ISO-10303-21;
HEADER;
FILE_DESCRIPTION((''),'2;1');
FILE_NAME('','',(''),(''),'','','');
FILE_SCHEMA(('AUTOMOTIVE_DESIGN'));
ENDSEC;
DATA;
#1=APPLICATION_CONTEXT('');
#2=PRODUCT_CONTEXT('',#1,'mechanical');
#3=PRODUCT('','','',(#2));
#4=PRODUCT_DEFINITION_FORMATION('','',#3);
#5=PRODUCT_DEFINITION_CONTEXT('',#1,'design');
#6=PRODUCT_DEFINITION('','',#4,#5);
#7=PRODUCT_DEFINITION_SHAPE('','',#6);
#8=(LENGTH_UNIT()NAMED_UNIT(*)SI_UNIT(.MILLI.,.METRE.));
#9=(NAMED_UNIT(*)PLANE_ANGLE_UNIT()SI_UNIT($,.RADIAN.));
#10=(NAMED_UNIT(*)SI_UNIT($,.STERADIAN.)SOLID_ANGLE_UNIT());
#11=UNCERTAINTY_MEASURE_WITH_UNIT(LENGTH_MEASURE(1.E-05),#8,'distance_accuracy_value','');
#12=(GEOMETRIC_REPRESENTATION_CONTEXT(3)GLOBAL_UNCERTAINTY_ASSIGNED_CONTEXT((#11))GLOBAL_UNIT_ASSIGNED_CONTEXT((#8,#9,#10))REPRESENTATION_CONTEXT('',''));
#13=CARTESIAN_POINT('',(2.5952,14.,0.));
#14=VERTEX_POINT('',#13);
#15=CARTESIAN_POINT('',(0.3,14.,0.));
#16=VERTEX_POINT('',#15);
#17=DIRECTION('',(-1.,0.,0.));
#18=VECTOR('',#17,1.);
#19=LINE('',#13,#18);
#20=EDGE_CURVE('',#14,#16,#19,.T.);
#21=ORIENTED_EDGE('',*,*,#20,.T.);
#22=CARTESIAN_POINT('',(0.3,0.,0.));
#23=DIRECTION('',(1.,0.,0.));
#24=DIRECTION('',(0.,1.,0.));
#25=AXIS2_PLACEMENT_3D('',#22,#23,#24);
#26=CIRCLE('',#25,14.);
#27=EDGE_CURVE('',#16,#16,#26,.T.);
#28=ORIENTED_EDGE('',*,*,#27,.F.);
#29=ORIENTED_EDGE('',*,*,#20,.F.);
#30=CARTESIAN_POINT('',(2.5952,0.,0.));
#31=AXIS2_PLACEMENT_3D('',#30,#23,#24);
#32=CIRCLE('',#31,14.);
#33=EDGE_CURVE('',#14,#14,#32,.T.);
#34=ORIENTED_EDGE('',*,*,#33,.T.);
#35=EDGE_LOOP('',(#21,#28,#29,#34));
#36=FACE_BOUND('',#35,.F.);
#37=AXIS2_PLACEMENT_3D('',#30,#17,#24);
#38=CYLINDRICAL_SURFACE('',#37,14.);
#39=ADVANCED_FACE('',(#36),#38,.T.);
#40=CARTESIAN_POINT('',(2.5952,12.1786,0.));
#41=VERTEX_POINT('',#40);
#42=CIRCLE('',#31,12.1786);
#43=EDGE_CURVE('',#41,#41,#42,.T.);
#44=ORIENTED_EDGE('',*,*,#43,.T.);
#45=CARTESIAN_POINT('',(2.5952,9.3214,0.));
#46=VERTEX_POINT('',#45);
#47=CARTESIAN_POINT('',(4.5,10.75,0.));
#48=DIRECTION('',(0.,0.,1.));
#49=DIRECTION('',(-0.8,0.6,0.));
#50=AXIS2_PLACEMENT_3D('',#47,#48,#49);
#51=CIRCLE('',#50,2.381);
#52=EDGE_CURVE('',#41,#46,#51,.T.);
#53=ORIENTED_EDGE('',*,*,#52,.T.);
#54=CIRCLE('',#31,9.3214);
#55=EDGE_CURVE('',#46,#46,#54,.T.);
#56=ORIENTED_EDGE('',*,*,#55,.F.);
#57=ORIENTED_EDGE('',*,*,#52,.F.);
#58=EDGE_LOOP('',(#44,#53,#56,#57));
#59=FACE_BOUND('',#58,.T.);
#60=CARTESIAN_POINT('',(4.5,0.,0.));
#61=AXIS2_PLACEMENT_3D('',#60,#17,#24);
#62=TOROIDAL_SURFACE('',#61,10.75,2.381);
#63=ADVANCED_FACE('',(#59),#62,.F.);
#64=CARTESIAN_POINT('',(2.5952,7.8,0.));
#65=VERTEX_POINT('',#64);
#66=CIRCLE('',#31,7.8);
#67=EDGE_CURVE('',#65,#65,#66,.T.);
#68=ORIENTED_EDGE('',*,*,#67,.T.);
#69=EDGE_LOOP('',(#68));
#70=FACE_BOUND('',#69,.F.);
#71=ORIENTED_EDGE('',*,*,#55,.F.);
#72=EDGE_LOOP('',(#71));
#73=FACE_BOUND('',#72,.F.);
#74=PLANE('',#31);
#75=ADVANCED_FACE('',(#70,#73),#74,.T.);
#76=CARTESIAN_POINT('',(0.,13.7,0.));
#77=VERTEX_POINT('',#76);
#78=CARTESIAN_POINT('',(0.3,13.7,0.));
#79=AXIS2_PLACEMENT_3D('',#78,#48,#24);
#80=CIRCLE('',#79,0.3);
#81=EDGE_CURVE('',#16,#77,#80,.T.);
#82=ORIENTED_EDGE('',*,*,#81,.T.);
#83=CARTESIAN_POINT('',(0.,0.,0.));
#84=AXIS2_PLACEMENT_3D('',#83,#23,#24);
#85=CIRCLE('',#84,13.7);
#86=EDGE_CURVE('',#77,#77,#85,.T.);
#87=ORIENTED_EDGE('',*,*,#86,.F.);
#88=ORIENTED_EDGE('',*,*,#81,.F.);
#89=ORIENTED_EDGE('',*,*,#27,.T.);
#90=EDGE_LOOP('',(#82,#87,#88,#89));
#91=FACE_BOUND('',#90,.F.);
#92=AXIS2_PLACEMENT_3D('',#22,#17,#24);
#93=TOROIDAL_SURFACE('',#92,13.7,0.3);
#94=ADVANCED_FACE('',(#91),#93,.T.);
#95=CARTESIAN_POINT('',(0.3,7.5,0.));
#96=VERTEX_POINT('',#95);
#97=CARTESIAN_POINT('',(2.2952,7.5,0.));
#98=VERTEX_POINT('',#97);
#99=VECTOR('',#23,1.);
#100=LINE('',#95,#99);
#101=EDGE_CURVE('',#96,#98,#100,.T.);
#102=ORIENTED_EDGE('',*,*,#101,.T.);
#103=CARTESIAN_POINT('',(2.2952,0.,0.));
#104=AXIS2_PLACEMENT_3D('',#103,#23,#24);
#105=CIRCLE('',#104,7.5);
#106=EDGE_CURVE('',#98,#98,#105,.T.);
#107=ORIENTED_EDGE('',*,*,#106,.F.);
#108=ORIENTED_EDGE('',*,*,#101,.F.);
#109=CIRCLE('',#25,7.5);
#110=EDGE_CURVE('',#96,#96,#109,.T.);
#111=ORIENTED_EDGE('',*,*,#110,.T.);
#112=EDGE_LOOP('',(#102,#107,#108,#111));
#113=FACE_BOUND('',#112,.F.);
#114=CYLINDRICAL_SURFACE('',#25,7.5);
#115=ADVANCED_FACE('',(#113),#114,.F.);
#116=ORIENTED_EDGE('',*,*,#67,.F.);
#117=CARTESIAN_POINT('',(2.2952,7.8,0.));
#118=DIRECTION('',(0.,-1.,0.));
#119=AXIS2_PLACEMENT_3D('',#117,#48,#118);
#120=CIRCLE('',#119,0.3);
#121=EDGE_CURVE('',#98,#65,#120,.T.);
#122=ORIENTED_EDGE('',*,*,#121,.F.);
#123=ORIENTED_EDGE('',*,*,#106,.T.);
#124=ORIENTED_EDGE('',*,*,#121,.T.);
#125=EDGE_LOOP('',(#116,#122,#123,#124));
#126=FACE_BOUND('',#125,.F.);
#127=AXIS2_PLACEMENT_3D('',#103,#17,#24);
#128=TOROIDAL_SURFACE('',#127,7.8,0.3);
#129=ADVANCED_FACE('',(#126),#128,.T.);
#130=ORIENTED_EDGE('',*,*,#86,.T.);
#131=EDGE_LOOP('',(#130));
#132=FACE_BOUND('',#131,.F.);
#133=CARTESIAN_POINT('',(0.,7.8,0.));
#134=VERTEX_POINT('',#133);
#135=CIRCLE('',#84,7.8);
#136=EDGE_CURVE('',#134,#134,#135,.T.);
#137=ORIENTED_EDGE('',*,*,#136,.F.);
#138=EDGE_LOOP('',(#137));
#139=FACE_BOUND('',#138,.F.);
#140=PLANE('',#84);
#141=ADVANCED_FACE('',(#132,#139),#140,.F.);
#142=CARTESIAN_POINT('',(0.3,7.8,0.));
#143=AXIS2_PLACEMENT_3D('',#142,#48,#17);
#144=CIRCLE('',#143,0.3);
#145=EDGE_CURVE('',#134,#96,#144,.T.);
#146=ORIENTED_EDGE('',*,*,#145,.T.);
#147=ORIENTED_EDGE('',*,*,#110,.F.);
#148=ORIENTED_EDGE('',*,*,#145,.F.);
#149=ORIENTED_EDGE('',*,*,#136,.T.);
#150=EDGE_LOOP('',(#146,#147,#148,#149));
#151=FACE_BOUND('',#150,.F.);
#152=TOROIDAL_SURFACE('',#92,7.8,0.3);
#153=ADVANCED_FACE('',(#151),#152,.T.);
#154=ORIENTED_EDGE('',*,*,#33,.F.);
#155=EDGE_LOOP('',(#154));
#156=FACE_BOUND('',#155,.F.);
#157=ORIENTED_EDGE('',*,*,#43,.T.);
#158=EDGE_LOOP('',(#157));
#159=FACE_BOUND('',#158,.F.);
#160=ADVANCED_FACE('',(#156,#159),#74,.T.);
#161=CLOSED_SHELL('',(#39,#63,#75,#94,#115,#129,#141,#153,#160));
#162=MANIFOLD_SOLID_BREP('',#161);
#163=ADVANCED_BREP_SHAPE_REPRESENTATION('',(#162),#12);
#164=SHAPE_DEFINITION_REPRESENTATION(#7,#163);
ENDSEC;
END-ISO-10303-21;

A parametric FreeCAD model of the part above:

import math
import FreeCAD as App
import Part
import Sketcher
Q = App.Units.Quantity

doc = App.newDocument("Part")
body = doc.addObject("PartDesign::Body", "Body")

sketch1 = doc.addObject("Sketcher::SketchObject", "Sketch")
body.addObject(sketch1)
sketch1.AttachmentSupport = (doc.XY_Plane, [""])
sketch1.MapMode = "FlatFace"
sketch1.addGeometry(Part.LineSegment(App.Vector(0, 13.7, 0), App.Vector(0, 7.8, 0)), False)
sketch1.addGeometry(Part.ArcOfCircle(Part.Circle(App.Vector(0.3, 7.8, 0), App.Vector(0, 0, 1), 0.3), math.radians(180), math.radians(270)), False)
sketch1.addGeometry(Part.LineSegment(App.Vector(0.3, 7.5, 0), App.Vector(2.2952, 7.5, 0)), False)
sketch1.addGeometry(Part.ArcOfCircle(Part.Circle(App.Vector(2.2952, 7.8, 0), App.Vector(0, 0, 1), 0.3), math.radians(-90), math.radians(0)), False)
sketch1.addGeometry(Part.LineSegment(App.Vector(2.5952, 7.8, 0), App.Vector(2.5952, 9.3214, 0)), False)
sketch1.addGeometry(Part.ArcOfCircle(Part.Circle(App.Vector(4.5, 10.75, 0), App.Vector(0, 0, 1), 2.381), math.radians(143.130102), math.radians(216.869898)), False)
sketch1.addGeometry(Part.LineSegment(App.Vector(2.5952, 12.1786, 0), App.Vector(2.5952, 14, 0)), False)
sketch1.addGeometry(Part.LineSegment(App.Vector(2.5952, 14, 0), App.Vector(0.3, 14, 0)), False)
sketch1.addGeometry(Part.ArcOfCircle(Part.Circle(App.Vector(0.3, 13.7, 0), App.Vector(0, 0, 1), 0.3), math.radians(90), math.radians(180)), False)
sketch1.addConstraint(Sketcher.Constraint("Tangent", 0, 2, 1, 1))
sketch1.addConstraint(Sketcher.Constraint("Tangent", 1, 2, 2, 1))
sketch1.addConstraint(Sketcher.Constraint("Tangent", 2, 2, 3, 1))
sketch1.addConstraint(Sketcher.Constraint("Tangent", 3, 2, 4, 1))
sketch1.addConstraint(Sketcher.Constraint("Coincident", 4, 2, 5, 2))
sketch1.addConstraint(Sketcher.Constraint("Coincident", 5, 1, 6, 1))
sketch1.addConstraint(Sketcher.Constraint("Coincident", 6, 2, 7, 1))
sketch1.addConstraint(Sketcher.Constraint("Tangent", 7, 2, 8, 1))
sketch1.addConstraint(Sketcher.Constraint("Tangent", 8, 2, 0, 1))
sketch1.addConstraint(Sketcher.Constraint("Vertical", 0))
sketch1.addConstraint(Sketcher.Constraint("Horizontal", 2))
sketch1.addConstraint(Sketcher.Constraint("Vertical", 4))
sketch1.addConstraint(Sketcher.Constraint("Vertical", 6))
sketch1.addConstraint(Sketcher.Constraint("Horizontal", 7))
sketch1.addConstraint(Sketcher.Constraint("Equal", 1, 3))
sketch1.addConstraint(Sketcher.Constraint("Equal", 3, 8))
sketch1.addConstraint(Sketcher.Constraint("PointOnObject", 0, 2, -2))
sketch1.addConstraint(Sketcher.Constraint("Vertical", 4, 2, 5, 1))
sketch1.addConstraint(Sketcher.Constraint("Radius", 1, Q("0.3 mm")))
sketch1.addConstraint(Sketcher.Constraint("DistanceY", 0, 2, 0, 1, Q("5.9 mm")))
sketch1.addConstraint(Sketcher.Constraint("DistanceY", -1, 1, 6, 2, Q("14 mm")))
sketch1.addConstraint(Sketcher.Constraint("Radius", 5, Q("2.381 mm")))
sketch1.addConstraint(Sketcher.Constraint("DistanceX", -1, 1, 5, 3, Q("4.5 mm")))
sketch1.addConstraint(Sketcher.Constraint("DistanceY", -1, 1, 5, 3, Q("10.75 mm")))
sketch1.addConstraint(Sketcher.Constraint("DistanceX", 2, 1, 2, 2, Q("1.9952 mm")))
revolution = doc.addObject("PartDesign::Revolution", "Revolution")
body.addObject(revolution)
revolution.Profile = sketch1
revolution.ReferenceAxis = (sketch1, ["H_Axis"])
revolution.Angle = 360

doc.recompute()
